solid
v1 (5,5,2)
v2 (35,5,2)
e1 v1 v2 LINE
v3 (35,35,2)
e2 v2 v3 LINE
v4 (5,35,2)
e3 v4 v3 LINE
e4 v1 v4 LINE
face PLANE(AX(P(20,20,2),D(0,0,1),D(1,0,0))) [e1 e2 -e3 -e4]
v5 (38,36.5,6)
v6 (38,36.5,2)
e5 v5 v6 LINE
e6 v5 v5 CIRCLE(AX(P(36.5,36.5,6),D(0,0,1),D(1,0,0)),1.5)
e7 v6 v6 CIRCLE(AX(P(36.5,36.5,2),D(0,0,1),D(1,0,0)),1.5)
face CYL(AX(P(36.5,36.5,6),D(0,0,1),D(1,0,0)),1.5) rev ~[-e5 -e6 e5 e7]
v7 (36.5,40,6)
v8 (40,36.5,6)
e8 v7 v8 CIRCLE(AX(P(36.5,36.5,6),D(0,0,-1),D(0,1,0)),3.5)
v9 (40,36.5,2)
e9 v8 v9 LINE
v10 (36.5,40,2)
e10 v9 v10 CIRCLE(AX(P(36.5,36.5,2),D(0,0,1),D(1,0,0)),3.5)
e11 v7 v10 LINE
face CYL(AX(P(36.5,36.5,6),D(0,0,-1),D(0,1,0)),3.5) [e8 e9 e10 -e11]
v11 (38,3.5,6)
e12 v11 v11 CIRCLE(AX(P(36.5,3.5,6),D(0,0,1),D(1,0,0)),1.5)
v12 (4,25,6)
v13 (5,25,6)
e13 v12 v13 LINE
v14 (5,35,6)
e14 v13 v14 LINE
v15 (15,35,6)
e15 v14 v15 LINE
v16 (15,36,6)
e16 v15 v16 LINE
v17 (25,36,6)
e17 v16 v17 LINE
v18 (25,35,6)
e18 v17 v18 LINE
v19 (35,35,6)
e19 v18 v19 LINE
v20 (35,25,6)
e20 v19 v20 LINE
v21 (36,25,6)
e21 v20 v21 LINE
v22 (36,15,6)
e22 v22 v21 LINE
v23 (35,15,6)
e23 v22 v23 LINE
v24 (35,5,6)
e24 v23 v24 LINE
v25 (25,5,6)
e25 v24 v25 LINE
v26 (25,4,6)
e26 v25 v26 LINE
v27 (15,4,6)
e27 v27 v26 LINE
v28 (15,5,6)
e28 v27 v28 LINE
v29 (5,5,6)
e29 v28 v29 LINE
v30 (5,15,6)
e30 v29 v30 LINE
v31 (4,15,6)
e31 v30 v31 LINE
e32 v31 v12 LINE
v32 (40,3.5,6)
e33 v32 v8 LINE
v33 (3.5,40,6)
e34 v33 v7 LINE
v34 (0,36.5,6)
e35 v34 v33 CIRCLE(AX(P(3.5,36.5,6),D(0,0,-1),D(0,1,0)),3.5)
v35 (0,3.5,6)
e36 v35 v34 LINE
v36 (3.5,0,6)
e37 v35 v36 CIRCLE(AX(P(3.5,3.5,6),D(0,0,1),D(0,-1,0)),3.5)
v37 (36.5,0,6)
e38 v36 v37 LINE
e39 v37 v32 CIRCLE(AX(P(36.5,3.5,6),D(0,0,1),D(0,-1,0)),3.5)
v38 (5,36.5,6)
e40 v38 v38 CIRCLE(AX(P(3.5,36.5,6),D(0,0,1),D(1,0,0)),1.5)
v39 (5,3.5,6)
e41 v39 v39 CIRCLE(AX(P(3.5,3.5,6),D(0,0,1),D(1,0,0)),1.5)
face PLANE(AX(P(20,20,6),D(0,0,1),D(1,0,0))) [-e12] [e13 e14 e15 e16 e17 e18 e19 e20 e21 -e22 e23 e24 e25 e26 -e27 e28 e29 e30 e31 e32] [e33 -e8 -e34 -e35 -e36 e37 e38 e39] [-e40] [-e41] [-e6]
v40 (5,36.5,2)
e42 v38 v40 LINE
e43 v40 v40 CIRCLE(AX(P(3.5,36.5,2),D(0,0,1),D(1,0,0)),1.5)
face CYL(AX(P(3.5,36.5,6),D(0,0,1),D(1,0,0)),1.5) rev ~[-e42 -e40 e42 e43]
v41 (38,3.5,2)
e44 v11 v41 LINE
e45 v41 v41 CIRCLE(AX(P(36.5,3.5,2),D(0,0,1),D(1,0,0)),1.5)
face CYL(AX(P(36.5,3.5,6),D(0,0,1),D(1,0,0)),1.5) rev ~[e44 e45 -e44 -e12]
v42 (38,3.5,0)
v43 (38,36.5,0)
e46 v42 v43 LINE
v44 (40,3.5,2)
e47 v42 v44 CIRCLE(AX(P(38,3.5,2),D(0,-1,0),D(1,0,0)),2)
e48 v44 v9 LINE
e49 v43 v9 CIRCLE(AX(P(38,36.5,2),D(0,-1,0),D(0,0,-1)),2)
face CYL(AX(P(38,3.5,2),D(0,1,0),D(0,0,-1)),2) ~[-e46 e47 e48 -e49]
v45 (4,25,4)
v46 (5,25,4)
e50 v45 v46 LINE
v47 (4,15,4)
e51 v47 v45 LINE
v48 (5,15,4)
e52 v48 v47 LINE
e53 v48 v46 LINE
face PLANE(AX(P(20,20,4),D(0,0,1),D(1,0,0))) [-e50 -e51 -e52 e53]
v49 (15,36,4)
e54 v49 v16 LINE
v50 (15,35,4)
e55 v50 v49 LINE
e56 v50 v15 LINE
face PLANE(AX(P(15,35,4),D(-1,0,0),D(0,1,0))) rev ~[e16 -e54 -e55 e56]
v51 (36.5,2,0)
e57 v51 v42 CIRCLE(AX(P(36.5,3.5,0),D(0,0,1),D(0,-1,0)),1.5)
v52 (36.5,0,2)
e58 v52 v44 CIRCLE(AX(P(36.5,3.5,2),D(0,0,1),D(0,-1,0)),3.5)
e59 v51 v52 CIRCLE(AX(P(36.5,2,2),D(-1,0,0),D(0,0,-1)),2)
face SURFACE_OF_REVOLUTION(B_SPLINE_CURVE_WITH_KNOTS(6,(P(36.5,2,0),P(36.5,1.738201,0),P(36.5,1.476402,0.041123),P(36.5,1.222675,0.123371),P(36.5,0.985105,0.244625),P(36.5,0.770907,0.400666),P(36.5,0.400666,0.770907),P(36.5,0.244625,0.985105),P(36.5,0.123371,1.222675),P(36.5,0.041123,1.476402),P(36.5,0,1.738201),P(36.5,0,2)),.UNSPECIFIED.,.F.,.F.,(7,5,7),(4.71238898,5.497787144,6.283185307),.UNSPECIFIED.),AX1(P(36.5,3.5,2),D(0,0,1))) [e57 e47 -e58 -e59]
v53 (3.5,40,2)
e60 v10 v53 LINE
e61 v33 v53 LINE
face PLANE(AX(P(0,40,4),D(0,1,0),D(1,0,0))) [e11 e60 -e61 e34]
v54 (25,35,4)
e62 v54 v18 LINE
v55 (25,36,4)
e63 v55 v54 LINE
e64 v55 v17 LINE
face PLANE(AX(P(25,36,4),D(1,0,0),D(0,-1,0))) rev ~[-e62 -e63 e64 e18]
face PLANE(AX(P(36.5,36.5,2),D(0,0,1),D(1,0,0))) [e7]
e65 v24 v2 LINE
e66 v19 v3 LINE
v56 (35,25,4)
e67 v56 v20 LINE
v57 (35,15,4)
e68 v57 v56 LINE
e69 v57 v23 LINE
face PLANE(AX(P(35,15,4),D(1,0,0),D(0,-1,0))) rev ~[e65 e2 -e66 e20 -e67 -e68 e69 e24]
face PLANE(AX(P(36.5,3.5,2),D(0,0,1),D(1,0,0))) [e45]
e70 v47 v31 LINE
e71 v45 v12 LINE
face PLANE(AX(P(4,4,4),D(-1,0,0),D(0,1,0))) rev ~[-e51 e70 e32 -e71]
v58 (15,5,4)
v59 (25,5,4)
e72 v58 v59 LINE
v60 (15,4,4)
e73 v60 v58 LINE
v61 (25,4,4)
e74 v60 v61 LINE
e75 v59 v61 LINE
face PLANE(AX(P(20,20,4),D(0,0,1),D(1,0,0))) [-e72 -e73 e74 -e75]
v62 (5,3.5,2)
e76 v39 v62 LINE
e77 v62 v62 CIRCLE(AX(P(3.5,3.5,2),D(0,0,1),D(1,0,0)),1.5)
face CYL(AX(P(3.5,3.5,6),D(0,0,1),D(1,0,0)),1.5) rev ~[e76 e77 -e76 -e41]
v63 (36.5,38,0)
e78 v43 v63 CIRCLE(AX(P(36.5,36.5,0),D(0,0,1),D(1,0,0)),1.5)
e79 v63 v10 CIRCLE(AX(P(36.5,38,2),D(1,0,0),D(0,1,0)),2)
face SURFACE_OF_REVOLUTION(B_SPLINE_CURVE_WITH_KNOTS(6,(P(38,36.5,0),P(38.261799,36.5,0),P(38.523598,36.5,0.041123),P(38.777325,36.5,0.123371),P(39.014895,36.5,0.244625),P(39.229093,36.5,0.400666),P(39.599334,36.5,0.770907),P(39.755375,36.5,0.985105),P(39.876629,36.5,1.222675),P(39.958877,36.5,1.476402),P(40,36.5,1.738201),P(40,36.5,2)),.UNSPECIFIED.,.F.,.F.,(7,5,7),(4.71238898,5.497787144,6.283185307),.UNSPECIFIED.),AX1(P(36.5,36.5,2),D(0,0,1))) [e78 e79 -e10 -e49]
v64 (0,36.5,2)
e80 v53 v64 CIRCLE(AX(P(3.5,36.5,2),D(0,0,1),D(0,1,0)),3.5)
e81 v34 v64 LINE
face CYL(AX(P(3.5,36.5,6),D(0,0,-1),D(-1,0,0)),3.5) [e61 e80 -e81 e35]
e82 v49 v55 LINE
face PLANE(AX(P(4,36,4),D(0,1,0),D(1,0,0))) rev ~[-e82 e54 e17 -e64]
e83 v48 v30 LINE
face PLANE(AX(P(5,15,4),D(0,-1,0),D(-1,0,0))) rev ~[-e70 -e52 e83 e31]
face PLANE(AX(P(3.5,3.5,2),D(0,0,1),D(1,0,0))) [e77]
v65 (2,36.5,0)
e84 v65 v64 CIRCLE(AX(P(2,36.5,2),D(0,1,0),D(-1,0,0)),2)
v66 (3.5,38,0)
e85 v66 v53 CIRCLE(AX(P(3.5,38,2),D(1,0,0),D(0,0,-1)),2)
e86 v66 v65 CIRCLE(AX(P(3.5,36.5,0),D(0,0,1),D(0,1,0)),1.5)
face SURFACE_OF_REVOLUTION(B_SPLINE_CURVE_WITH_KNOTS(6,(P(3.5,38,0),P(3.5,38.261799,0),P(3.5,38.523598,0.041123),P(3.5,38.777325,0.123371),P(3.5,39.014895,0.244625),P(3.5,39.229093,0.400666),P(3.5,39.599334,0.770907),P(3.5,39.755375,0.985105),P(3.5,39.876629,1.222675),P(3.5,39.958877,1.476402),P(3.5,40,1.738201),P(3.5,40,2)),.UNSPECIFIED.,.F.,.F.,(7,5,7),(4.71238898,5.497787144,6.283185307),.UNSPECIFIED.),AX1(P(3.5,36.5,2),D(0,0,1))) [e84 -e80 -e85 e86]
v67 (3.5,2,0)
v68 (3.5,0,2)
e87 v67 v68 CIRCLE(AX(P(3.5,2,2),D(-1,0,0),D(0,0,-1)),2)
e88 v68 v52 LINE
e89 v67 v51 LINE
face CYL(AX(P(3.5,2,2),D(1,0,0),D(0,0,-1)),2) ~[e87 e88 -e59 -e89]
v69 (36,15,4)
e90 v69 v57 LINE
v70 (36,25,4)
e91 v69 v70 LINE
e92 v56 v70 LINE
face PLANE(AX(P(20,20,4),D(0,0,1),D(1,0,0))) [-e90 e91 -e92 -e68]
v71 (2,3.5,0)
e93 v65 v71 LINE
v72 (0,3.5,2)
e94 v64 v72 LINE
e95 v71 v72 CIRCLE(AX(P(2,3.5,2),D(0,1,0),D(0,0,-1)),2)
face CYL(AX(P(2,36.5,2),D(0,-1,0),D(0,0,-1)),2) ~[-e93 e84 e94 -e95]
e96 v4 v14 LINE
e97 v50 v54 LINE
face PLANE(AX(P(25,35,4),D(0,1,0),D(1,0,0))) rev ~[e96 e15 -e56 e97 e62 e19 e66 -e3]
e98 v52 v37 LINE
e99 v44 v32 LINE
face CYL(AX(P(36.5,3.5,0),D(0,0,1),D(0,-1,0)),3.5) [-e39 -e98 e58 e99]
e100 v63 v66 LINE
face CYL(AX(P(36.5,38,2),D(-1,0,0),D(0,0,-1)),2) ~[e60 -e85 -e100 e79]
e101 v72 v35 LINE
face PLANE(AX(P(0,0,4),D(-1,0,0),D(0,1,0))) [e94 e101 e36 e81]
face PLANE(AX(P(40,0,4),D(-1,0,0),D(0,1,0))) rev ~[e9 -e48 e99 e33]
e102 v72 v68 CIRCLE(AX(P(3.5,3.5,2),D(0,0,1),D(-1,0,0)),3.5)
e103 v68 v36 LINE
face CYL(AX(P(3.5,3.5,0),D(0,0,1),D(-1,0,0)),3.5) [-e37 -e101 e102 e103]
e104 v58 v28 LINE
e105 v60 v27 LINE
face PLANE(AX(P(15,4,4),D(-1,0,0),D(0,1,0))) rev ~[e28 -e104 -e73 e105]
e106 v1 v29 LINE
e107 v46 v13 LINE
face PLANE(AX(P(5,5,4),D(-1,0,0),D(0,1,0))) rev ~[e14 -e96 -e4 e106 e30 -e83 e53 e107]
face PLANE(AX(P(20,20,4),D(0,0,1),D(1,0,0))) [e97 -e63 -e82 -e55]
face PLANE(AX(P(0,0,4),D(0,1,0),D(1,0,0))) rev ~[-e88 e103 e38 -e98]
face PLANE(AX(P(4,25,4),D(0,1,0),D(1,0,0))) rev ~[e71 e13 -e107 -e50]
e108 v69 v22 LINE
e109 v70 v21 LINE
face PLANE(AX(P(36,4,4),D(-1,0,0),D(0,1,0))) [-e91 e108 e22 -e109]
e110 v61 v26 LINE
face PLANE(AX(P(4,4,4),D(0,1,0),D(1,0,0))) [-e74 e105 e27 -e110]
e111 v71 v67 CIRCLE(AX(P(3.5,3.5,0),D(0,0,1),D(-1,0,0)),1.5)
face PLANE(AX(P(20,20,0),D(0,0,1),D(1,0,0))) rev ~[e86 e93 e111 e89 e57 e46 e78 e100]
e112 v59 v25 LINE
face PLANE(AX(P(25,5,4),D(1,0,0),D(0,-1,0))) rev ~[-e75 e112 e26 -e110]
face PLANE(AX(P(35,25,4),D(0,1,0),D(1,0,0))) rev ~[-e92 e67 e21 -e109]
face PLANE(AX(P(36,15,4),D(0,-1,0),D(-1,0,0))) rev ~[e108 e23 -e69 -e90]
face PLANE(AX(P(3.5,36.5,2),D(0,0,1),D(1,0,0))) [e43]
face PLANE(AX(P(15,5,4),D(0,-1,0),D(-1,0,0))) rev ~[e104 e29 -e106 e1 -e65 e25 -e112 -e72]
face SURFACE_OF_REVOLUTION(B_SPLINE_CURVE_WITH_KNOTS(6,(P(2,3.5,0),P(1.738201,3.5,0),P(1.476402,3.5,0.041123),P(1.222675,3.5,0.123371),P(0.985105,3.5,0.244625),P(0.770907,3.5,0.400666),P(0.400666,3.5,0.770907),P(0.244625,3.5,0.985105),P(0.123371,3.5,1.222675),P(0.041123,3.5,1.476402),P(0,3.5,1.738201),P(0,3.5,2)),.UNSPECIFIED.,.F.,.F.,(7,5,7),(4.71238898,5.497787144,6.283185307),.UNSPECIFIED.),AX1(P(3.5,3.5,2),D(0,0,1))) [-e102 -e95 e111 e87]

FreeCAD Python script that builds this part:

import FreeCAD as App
import Part
import Sketcher
from FreeCAD import Vector
Q = App.Units.Quantity


def edges_at(feature, points):
    """Names of the edges that pass closest to the given points."""
    edges = feature.Shape.Edges
    near = lambda p: min(range(len(edges)), key=lambda i: edges[i].distToShape(Part.Vertex(*p))[0])
    return sorted({f"Edge{near(p) + 1}" for p in points})


def add_polygon(sketch, points):
    """Adds a closed chain of lines whose ends are joined by coincident constraints."""
    first, n = sketch.GeometryCount, len(points)
    for a, b in zip(points, points[1:] + points[:1]):
        sketch.addGeometry(Part.LineSegment(App.Vector(*a, 0), App.Vector(*b, 0)), False)
    for i in range(n):
        sketch.addConstraint(Sketcher.Constraint("Coincident", first + i, 2, first + (i + 1) % n, 1))

doc = App.newDocument("Part")
params = doc.addObject("Spreadsheet::Sheet", "Params")
for row, (alias, value) in enumerate([
    ("sketch1_width", "40 mm"),
    ("pad1_length", "2 mm"),
    ("sketch2_width", "40 mm"),
    ("sketch2_width2", "30 mm"),
    ("pad2_length", "2 mm"),
    ("sketch3_width", "40 mm"),
    ("sketch3_width2", "10 mm"),
    ("sketch3_width3", "1 mm"),
    ("pad3_length", "2 mm"),
    ("sketch4_diameter", "3 mm"),
    ("pocket1_length", "4 mm"),
    ("fillet_radius", "3.5 mm"),
    ("fillet2_radius", "2 mm"),
], start=1):
    params.set(f"A{row}", alias)
    params.set(f"B{row}", "=" + value)
    params.setAlias(f"B{row}", alias)

body = doc.addObject("PartDesign::Body", "Body")

sketch1 = body.newObject("Sketcher::SketchObject", "Sketch")
sketch1.AttachmentSupport = (doc.getObject("XY_Plane"), [""])
sketch1.MapMode = "FlatFace"
add_polygon(sketch1, [(0, 40), (0, 0), (40, 0), (40, 40)])
sketch1.addConstraint(Sketcher.Constraint("Vertical", 0))
sketch1.addConstraint(Sketcher.Constraint("Horizontal", 1))
sketch1.addConstraint(Sketcher.Constraint("Vertical", 2))
sketch1.addConstraint(Sketcher.Constraint("Horizontal", 3))
sketch1.addConstraint(Sketcher.Constraint("Coincident", 0, 2, -1, 1))
sketch1.addConstraint(Sketcher.Constraint("Equal", 3, 0))
sketch1.addConstraint(Sketcher.Constraint("DistanceX", 1, 1, 1, 2, Q("40 mm")))
sketch1.setExpression("Constraints[10]", "Params.sketch1_width")
pad1 = body.newObject("PartDesign::Pad", "Pad")
pad1.Profile = sketch1
pad1.setExpression("Length", "Params.pad1_length")

sketch2 = body.newObject("Sketcher::SketchObject", "Sketch001")
sketch2.AttachmentSupport = (doc.getObject("XY_Plane"), [""])
sketch2.MapMode = "FlatFace"
sketch2.AttachmentOffset = App.Placement(Vector(0, 0, 2), App.Rotation())
add_polygon(sketch2, [(0, 40), (0, 0), (40, 0), (40, 40)])
add_polygon(sketch2, [(35, 5), (5, 5), (5, 35), (35, 35)])
sketch2.addConstraint(Sketcher.Constraint("Vertical", 0))
sketch2.addConstraint(Sketcher.Constraint("Horizontal", 1))
sketch2.addConstraint(Sketcher.Constraint("Vertical", 2))
sketch2.addConstraint(Sketcher.Constraint("Horizontal", 3))
sketch2.addConstraint(Sketcher.Constraint("Horizontal", 4))
sketch2.addConstraint(Sketcher.Constraint("Vertical", 5))
sketch2.addConstraint(Sketcher.Constraint("Horizontal", 6))
sketch2.addConstraint(Sketcher.Constraint("Vertical", 7))
sketch2.addConstraint(Sketcher.Constraint("Coincident", 0, 2, -1, 1))
sketch2.addConstraint(Sketcher.Constraint("Equal", 3, 0))
sketch2.addConstraint(Sketcher.Constraint("Equal", 6, 5))
sketch2.addConstraint(Sketcher.Constraint("DistanceX", 1, 1, 1, 2, Q("40 mm")))
sketch2.addConstraint(Sketcher.Constraint("DistanceX", 4, 2, 4, 1, Q("30 mm")))
sketch2.addConstraint(Sketcher.Constraint("DistanceX", -1, 1, 4, 2, Q("5 mm")))
sketch2.addConstraint(Sketcher.Constraint("DistanceY", -1, 1, 4, 2, Q("5 mm")))
sketch2.setExpression("Constraints[19]", "Params.sketch2_width")
sketch2.setExpression("Constraints[20]", "Params.sketch2_width2")
pad2 = body.newObject("PartDesign::Pad", "Pad001")
pad2.Profile = sketch2
pad2.setExpression("Length", "Params.pad2_length")

sketch3 = body.newObject("Sketcher::SketchObject", "Sketch002")
sketch3.AttachmentSupport = (doc.getObject("XY_Plane"), [""])
sketch3.MapMode = "FlatFace"
sketch3.AttachmentOffset = App.Placement(Vector(0, 0, 4), App.Rotation())
add_polygon(sketch3, [(0, 40), (0, 0), (40, 0), (40, 40)])
add_polygon(sketch3, [(25, 4), (15, 4), (15, 5), (5, 5), (5, 15), (4, 15), (4, 25), (5, 25), (5, 35), (15, 35), (15, 36), (25, 36), (25, 35), (35, 35), (35, 25), (36, 25), (36, 15), (35, 15), (35, 5), (25, 5)])
sketch3.addConstraint(Sketcher.Constraint("Vertical", 0))
sketch3.addConstraint(Sketcher.Constraint("Horizontal", 1))
sketch3.addConstraint(Sketcher.Constraint("Vertical", 2))
sketch3.addConstraint(Sketcher.Constraint("Horizontal", 3))
sketch3.addConstraint(Sketcher.Constraint("Horizontal", 4))
sketch3.addConstraint(Sketcher.Constraint("Vertical", 5))
sketch3.addConstraint(Sketcher.Constraint("Horizontal", 6))
sketch3.addConstraint(Sketcher.Constraint("Vertical", 7))
sketch3.addConstraint(Sketcher.Constraint("Horizontal", 8))
sketch3.addConstraint(Sketcher.Constraint("Vertical", 9))
sketch3.addConstraint(Sketcher.Constraint("Horizontal", 10))
sketch3.addConstraint(Sketcher.Constraint("Vertical", 11))
sketch3.addConstraint(Sketcher.Constraint("Horizontal", 12))
sketch3.addConstraint(Sketcher.Constraint("Vertical", 13))
sketch3.addConstraint(Sketcher.Constraint("Horizontal", 14))
sketch3.addConstraint(Sketcher.Constraint("Vertical", 15))
sketch3.addConstraint(Sketcher.Constraint("Horizontal", 16))
sketch3.addConstraint(Sketcher.Constraint("Vertical", 17))
sketch3.addConstraint(Sketcher.Constraint("Horizontal", 18))
sketch3.addConstraint(Sketcher.Constraint("Vertical", 19))
sketch3.addConstraint(Sketcher.Constraint("Horizontal", 20))
sketch3.addConstraint(Sketcher.Constraint("Vertical", 21))
sketch3.addConstraint(Sketcher.Constraint("Horizontal", 22))
sketch3.addConstraint(Sketcher.Constraint("Vertical", 23))
sketch3.addConstraint(Sketcher.Constraint("Coincident", 0, 2, -1, 1))
sketch3.addConstraint(Sketcher.Constraint("Horizontal", 12, 2, 15, 2))
sketch3.addConstraint(Sketcher.Constraint("Horizontal", 10, 2, 17, 2))
sketch3.addConstraint(Sketcher.Constraint("Horizontal", 8, 2, 19, 2))
sketch3.addConstraint(Sketcher.Constraint("Horizontal", 6, 2, 21, 2))
sketch3.addConstraint(Sketcher.Constraint("Vertical", 7, 2, 10, 2))
sketch3.addConstraint(Sketcher.Constraint("Vertical", 5, 2, 12, 2))
sketch3.addConstraint(Sketcher.Constraint("Vertical", 17, 2, 20, 2))
sketch3.addConstraint(Sketcher.Constraint("Vertical", 15, 2, 22, 2))
sketch3.addConstraint(Sketcher.Constraint("Equal", 4, 6))
sketch3.addConstraint(Sketcher.Constraint("Equal", 14, 16))
sketch3.addConstraint(Sketcher.Constraint("Equal", 10, 18))
sketch3.addConstraint(Sketcher.Constraint("Equal", 3, 0))
sketch3.addConstraint(Sketcher.Constraint("Equal", 20, 5))
sketch3.addConstraint(Sketcher.Constraint("Equal", 22, 7))
sketch3.addConstraint(Sketcher.Constraint("Equal", 7, 9))
sketch3.addConstraint(Sketcher.Constraint("Equal", 9, 11))
sketch3.addConstraint(Sketcher.Constraint("Equal", 5, 13))
sketch3.addConstraint(Sketcher.Constraint("DistanceX", 1, 1, 1, 2, Q("40 mm")))
sketch3.addConstraint(Sketcher.Constraint("DistanceX", 4, 2, 4, 1, Q("10 mm")))
sketch3.addConstraint(Sketcher.Constraint("DistanceX", 8, 2, 8, 1, Q("1 mm")))
sketch3.addConstraint(Sketcher.Constraint("DistanceX", -1, 1, 4, 2, Q("15 mm")))
sketch3.addConstraint(Sketcher.Constraint("DistanceY", -1, 1, 4, 2, Q("4 mm")))
sketch3.setExpression("Constraints[66]", "Params.sketch3_width")
sketch3.setExpression("Constraints[67]", "Params.sketch3_width2")
sketch3.setExpression("Constraints[68]", "Params.sketch3_width3")
pad3 = body.newObject("PartDesign::Pad", "Pad002")
pad3.Profile = sketch3
pad3.setExpression("Length", "Params.pad3_length")

sketch4 = body.newObject("Sketcher::SketchObject", "Sketch003")
sketch4.AttachmentSupport = (doc.getObject("XY_Plane"), [""])
sketch4.MapMode = "FlatFace"
sketch4.AttachmentOffset = App.Placement(Vector(0, 0, 6), App.Rotation())
sketch4.addGeometry(Part.Circle(Vector(3.5, 36.5, 0), Vector(0, 0, 1), 1.5), False)
sketch4.addGeometry(Part.Circle(Vector(36.5, 36.5, 0), Vector(0, 0, 1), 1.5), False)
sketch4.addGeometry(Part.Circle(Vector(36.5, 3.5, 0), Vector(0, 0, 1), 1.5), False)
sketch4.addGeometry(Part.Circle(Vector(3.5, 3.5, 0), Vector(0, 0, 1), 1.5), False)
sketch4.addConstraint(Sketcher.Constraint("Equal", 0, 1))
sketch4.addConstraint(Sketcher.Constraint("Equal", 1, 2))
sketch4.addConstraint(Sketcher.Constraint("Equal", 2, 3))
sketch4.addConstraint(Sketcher.Constraint("Horizontal", 0, 3, 1, 3))
sketch4.addConstraint(Sketcher.Constraint("Horizontal", 2, 3, 3, 3))
sketch4.addConstraint(Sketcher.Constraint("Vertical", 1, 3, 2, 3))
sketch4.addConstraint(Sketcher.Constraint("Vertical", 0, 3, 3, 3))
sketch4.addConstraint(Sketcher.Constraint("Diameter", 0, Q("3 mm")))
sketch4.addConstraint(Sketcher.Constraint("DistanceX", 0, 3, 1, 3, Q("33 mm")))
sketch4.addConstraint(Sketcher.Constraint("DistanceY", 2, 3, 1, 3, Q("33 mm")))
sketch4.addConstraint(Sketcher.Constraint("DistanceX", -1, 1, 0, 3, Q("3.5 mm")))
sketch4.addConstraint(Sketcher.Constraint("DistanceY", -1, 1, 0, 3, Q("36.5 mm")))
sketch4.setExpression("Constraints[7]", "Params.sketch4_diameter")
pocket1 = body.newObject("PartDesign::Pocket", "Pocket")
pocket1.Profile = sketch4
pocket1.setExpression("Length", "Params.pocket1_length")
doc.recompute()

fillet = body.newObject("PartDesign::Fillet", "Fillet")
fillet.Base = (pocket1, edges_at(pocket1, [
    (0, 40, 3),
    (40, 40, 3),
    (40, 0, 3),
    (0, 0, 3),
]))
fillet.setExpression("Radius", "Params.fillet_radius")
doc.recompute()

fillet2 = body.newObject("PartDesign::Fillet", "Fillet001")
fillet2.Base = (fillet, edges_at(fillet, [
    (20, 0, 0),
    (0, 20, 0),
    (20, 40, 0),
    (40, 20, 0),
    (1.025, 38.975, 0),
    (38.975, 38.975, 0),
    (38.975, 1.025, 0),
    (1.025, 1.025, 0),
]))
fillet2.setExpression("Radius", "Params.fillet2_radius")

doc.recompute()
